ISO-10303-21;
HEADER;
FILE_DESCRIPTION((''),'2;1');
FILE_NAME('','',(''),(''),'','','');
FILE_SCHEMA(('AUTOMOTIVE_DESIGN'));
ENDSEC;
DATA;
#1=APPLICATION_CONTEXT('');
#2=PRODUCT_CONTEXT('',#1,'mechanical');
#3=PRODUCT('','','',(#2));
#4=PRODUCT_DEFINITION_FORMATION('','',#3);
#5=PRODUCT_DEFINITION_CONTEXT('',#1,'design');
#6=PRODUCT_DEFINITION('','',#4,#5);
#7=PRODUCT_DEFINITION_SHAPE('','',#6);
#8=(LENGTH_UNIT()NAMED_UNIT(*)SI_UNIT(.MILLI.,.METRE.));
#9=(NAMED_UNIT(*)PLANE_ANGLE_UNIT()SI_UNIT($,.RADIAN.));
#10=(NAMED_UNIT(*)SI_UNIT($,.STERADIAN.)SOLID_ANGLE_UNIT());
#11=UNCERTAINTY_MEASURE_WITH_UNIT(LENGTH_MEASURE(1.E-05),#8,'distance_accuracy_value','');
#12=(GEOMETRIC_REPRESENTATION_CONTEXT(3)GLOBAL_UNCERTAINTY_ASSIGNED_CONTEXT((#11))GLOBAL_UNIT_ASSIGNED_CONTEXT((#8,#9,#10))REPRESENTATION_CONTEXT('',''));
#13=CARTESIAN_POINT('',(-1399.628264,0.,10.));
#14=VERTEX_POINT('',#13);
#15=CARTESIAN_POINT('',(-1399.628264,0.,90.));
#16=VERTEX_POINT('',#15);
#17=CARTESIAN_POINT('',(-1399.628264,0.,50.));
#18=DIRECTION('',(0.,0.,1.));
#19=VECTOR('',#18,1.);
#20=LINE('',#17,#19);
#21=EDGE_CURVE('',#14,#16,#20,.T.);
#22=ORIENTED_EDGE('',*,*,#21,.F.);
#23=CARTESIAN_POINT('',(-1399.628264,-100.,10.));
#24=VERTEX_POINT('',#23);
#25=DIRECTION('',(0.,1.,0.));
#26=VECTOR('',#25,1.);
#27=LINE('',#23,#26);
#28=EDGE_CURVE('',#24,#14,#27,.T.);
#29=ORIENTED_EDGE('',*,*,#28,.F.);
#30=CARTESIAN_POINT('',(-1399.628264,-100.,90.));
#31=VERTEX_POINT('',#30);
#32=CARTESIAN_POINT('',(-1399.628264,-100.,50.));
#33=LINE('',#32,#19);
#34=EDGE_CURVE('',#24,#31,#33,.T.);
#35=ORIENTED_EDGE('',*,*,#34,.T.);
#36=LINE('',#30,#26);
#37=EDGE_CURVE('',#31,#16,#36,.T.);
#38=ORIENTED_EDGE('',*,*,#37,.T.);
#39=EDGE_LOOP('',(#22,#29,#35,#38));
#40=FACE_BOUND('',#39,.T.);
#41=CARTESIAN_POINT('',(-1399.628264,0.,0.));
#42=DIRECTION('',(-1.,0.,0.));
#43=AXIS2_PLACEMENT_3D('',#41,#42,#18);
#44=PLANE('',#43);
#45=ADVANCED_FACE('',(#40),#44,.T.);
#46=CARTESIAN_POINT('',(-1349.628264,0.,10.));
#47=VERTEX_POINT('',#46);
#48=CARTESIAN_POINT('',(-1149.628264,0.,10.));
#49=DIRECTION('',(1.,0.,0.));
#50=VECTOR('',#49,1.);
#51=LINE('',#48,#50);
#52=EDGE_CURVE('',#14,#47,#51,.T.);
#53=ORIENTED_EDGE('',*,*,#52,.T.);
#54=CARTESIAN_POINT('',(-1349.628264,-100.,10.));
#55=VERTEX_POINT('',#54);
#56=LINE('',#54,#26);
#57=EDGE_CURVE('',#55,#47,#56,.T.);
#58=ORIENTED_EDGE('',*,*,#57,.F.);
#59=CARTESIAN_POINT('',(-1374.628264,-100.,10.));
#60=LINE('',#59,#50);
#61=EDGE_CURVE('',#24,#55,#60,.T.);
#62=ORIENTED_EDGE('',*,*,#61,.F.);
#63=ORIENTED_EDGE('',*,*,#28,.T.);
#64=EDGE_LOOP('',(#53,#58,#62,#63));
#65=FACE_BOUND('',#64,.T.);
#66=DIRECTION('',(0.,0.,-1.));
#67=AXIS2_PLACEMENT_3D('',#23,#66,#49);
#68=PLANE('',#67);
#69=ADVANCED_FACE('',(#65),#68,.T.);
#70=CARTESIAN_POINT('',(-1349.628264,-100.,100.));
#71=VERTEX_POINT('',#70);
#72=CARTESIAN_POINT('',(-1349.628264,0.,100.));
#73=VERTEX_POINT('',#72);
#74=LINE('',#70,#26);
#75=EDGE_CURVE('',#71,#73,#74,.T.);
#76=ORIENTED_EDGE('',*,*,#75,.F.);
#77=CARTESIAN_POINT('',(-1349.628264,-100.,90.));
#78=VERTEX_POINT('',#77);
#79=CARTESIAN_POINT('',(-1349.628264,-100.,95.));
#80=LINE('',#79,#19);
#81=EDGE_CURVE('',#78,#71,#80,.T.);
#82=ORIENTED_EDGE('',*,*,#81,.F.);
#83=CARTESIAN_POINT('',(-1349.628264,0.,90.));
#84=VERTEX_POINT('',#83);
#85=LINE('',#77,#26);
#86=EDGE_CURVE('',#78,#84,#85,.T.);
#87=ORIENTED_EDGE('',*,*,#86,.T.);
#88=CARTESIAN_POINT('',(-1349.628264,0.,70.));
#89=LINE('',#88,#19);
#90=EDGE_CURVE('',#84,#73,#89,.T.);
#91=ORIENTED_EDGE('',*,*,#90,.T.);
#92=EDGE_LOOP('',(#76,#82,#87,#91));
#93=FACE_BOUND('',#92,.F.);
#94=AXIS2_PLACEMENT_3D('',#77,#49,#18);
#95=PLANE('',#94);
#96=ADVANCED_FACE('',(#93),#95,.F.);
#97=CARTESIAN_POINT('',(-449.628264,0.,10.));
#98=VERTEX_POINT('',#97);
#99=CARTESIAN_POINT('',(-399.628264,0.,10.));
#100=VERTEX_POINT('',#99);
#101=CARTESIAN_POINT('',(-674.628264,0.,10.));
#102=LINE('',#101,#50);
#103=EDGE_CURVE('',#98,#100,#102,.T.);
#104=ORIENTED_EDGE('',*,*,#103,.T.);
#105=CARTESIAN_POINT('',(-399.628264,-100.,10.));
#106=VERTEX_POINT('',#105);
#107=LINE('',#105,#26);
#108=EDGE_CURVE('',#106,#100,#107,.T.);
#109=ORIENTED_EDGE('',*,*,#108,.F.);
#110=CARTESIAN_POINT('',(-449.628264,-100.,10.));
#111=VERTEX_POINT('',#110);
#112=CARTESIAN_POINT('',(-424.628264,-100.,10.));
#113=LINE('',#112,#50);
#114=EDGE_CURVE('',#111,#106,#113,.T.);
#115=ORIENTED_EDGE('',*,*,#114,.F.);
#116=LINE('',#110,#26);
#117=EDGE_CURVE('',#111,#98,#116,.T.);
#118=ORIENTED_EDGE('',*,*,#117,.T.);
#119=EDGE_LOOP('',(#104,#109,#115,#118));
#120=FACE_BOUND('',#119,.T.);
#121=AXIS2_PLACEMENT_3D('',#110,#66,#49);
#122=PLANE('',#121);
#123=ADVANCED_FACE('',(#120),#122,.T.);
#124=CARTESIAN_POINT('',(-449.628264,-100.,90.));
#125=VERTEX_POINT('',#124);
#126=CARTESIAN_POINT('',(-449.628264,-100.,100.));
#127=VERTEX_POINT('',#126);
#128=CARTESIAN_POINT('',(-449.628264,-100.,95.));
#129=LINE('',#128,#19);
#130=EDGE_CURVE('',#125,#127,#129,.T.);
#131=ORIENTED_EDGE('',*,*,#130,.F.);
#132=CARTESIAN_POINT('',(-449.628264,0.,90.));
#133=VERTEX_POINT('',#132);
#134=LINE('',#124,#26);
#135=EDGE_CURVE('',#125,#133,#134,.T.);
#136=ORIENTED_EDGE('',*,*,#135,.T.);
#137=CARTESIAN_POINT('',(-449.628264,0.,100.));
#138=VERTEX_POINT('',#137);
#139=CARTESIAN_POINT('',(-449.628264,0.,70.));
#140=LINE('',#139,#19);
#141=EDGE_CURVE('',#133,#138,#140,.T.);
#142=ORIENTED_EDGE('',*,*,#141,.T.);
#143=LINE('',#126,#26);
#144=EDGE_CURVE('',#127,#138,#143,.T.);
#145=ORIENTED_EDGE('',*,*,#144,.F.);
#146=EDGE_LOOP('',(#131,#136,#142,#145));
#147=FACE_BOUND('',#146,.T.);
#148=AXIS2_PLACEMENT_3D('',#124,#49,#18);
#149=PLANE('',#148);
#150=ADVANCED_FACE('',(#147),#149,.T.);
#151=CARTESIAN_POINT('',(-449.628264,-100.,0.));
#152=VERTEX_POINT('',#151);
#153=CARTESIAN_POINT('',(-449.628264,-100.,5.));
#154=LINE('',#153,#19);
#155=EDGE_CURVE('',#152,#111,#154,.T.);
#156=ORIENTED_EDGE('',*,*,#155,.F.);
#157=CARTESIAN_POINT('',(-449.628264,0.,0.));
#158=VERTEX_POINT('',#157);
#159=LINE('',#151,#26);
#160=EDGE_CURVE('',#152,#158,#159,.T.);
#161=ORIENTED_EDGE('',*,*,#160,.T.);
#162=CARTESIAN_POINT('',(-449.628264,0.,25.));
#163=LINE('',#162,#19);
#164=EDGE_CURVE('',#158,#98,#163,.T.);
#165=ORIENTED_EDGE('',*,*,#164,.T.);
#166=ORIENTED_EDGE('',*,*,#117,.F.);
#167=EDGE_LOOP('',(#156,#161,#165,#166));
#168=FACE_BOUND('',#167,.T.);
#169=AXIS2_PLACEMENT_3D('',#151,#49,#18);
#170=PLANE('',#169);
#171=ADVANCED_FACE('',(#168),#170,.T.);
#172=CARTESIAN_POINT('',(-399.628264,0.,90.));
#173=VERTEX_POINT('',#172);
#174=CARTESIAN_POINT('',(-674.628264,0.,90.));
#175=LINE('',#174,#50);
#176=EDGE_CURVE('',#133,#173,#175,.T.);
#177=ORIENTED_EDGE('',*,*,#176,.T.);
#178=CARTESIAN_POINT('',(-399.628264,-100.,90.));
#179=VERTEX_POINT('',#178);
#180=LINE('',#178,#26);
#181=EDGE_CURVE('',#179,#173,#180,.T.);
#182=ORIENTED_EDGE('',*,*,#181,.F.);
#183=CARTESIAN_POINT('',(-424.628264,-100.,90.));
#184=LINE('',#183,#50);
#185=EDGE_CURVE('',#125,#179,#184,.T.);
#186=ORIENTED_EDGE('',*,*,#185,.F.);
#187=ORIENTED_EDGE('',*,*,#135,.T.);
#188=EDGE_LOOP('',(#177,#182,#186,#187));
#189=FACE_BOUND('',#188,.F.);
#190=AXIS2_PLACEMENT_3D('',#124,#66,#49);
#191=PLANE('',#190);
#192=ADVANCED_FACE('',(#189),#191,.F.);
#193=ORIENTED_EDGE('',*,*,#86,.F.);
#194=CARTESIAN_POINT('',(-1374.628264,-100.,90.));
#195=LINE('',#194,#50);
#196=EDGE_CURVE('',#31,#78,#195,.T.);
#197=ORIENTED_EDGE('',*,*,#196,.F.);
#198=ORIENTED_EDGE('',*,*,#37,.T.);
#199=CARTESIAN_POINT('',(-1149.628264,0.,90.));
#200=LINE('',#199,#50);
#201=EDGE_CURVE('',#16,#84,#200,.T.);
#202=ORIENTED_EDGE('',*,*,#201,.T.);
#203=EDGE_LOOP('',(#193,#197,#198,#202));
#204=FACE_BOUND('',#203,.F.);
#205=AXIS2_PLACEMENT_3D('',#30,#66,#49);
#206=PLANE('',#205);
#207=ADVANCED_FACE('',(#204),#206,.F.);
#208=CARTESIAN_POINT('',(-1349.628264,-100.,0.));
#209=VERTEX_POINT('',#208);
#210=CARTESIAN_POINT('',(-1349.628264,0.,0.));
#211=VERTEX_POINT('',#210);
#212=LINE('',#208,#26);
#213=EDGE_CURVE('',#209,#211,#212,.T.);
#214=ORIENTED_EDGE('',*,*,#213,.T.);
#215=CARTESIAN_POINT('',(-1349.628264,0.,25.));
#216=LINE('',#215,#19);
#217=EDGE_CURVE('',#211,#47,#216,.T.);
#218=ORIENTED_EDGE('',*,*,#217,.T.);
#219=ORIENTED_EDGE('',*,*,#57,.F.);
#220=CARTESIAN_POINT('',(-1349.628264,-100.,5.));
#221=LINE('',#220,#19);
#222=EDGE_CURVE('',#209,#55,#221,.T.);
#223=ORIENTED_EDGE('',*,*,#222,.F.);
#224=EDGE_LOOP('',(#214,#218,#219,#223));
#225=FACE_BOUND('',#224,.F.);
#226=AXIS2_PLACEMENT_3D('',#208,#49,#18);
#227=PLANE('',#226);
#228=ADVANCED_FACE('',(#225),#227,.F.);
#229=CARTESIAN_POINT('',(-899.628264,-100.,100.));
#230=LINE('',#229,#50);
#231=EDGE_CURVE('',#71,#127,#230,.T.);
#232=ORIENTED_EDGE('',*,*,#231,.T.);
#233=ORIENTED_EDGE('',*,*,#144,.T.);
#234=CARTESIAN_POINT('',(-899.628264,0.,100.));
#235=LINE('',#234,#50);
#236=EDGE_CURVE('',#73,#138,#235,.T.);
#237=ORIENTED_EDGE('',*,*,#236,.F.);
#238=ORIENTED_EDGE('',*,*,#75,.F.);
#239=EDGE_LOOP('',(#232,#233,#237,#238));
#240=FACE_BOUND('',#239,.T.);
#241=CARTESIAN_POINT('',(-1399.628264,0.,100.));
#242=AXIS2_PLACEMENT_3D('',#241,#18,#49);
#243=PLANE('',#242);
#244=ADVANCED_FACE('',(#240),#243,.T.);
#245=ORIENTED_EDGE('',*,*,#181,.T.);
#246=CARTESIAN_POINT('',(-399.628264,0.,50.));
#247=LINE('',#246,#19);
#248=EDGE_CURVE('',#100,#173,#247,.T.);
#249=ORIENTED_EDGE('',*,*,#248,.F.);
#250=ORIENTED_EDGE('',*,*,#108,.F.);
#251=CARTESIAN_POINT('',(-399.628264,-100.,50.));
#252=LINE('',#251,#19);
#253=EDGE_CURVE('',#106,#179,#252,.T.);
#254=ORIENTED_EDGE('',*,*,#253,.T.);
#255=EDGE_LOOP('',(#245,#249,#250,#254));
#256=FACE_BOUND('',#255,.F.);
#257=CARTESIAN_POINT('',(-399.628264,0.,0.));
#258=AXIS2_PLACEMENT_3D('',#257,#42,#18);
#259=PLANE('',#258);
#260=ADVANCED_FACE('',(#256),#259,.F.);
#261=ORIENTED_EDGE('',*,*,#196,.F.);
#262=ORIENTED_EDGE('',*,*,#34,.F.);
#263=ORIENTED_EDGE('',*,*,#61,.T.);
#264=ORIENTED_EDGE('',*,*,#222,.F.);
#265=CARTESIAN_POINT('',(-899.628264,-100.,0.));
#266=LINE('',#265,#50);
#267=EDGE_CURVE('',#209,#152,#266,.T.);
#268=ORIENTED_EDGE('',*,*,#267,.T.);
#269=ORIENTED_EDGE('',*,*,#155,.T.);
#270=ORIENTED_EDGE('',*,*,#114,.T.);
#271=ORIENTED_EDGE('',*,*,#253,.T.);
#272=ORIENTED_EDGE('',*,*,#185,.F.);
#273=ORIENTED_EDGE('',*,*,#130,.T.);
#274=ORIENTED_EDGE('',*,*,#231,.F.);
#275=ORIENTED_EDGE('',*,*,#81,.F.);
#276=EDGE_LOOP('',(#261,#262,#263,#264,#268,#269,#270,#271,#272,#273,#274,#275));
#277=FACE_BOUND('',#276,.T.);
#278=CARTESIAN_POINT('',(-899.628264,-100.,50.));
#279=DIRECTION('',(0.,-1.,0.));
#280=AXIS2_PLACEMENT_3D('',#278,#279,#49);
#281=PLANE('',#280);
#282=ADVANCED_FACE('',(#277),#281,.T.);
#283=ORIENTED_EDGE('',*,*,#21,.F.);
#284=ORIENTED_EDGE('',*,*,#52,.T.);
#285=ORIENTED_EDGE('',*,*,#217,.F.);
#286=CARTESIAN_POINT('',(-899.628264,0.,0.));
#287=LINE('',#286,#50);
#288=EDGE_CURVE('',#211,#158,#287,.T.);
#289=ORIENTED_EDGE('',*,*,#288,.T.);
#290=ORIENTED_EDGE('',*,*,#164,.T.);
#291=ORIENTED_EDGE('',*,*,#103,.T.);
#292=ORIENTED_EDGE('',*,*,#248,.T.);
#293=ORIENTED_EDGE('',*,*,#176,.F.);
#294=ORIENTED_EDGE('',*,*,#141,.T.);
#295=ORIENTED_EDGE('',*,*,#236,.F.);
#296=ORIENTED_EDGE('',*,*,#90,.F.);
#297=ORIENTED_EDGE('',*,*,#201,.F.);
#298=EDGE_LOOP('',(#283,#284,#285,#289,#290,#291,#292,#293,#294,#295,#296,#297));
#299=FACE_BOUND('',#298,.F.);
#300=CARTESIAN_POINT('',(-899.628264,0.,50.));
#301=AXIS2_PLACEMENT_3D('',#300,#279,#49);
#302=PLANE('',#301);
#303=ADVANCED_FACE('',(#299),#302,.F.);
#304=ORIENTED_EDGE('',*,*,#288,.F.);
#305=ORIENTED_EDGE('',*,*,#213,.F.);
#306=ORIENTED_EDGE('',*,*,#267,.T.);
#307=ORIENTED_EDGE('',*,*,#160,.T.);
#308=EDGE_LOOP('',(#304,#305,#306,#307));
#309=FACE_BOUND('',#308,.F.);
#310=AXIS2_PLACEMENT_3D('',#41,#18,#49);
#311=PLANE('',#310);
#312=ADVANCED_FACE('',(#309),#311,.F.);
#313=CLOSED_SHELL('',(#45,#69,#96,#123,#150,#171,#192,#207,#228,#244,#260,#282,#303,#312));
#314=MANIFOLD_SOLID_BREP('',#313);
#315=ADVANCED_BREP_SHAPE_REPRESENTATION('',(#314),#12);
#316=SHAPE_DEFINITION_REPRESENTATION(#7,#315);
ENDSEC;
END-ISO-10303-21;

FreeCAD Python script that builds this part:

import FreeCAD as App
import Part
import Sketcher

V = App.Vector

doc = App.newDocument("Part")
params = doc.addObject("Spreadsheet::Sheet", "Params")
for row, (alias, value) in enumerate([
    ("sketch1_width", "1000 mm"),
    ("sketch1_height", "100 mm"),
    ("pad1_length", "100 mm"),
    ("sketch2_width", "50 mm"),
    ("sketch2_height", "10 mm"),
], start=1):
    params.set(f"A{row}", alias)
    params.set(f"B{row}", "=" + value)
    params.setAlias(f"B{row}", alias)

body = doc.addObject("PartDesign::Body", "Body")

# Sketch on XZ plane
sketch1 = doc.addObject("Sketcher::SketchObject", "Sketch")
body.addObject(sketch1)
sketch1.AttachmentSupport = (doc.XZ_Plane, [""])
sketch1.MapMode = "FlatFace"
sketch1.addGeometry(Part.LineSegment(V(-1399.628264, 100, 0), V(-1399.628264, 0, 0)), False)
sketch1.addGeometry(Part.LineSegment(V(-1399.628264, 0, 0), V(-399.628264, 0, 0)), False)
sketch1.addGeometry(Part.LineSegment(V(-399.628264, 0, 0), V(-399.628264, 100, 0)), False)
sketch1.addGeometry(Part.LineSegment(V(-399.628264, 100, 0), V(-1399.628264, 100, 0)), False)
sketch1.addConstraint(Sketcher.Constraint("Coincident", 0, 2, 1, 1))
sketch1.addConstraint(Sketcher.Constraint("Coincident", 1, 2, 2, 1))
sketch1.addConstraint(Sketcher.Constraint("Coincident", 2, 2, 3, 1))
sketch1.addConstraint(Sketcher.Constraint("Coincident", 3, 2, 0, 1))
sketch1.addConstraint(Sketcher.Constraint("Vertical", 0))
sketch1.addConstraint(Sketcher.Constraint("Horizontal", 1))
sketch1.addConstraint(Sketcher.Constraint("Vertical", 2))
sketch1.addConstraint(Sketcher.Constraint("Horizontal", 3))
sketch1.addConstraint(Sketcher.Constraint("PointOnObject", 0, 2, -1))
sketch1.addConstraint(Sketcher.Constraint("DistanceX", 1, 1, 1, 2, 1000.0))
sketch1.addConstraint(Sketcher.Constraint("DistanceY", 0, 2, 0, 1, 100.0))
sketch1.addConstraint(Sketcher.Constraint("DistanceX", 0, 2, -1, 1, 1399.628264))
sketch1.setExpression("Constraints[9]", "Params.sketch1_width")
sketch1.setExpression("Constraints[10]", "Params.sketch1_height")
pad1 = doc.addObject("PartDesign::Pad", "Pad")
body.addObject(pad1)
pad1.Profile = sketch1
pad1.setExpression("Length", "Params.pad1_length")

# Sketch on XZ plane
sketch2 = doc.addObject("Sketcher::SketchObject", "Sketch001")
body.addObject(sketch2)
sketch2.AttachmentSupport = (doc.XZ_Plane, [""])
sketch2.MapMode = "FlatFace"
sketch2.AttachmentOffset = App.Placement(V(0, 0, 100), App.Rotation())
sketch2.addGeometry(Part.LineSegment(V(-449.628264, 100, 0), V(-449.628264, 90, 0)), False)
sketch2.addGeometry(Part.LineSegment(V(-449.628264, 90, 0), V(-399.628264, 90, 0)), False)
sketch2.addGeometry(Part.LineSegment(V(-399.628264, 90, 0), V(-399.628264, 100, 0)), False)
sketch2.addGeometry(Part.LineSegment(V(-399.628264, 100, 0), V(-449.628264, 100, 0)), False)
sketch2.addGeometry(Part.LineSegment(V(-449.628264, 10, 0), V(-449.628264, 0, 0)), False)
sketch2.addGeometry(Part.LineSegment(V(-449.628264, 0, 0), V(-399.628264, 0, 0)), False)
sketch2.addGeometry(Part.LineSegment(V(-399.628264, 0, 0), V(-399.628264, 10, 0)), False)
sketch2.addGeometry(Part.LineSegment(V(-399.628264, 10, 0), V(-449.628264, 10, 0)), False)
sketch2.addGeometry(Part.LineSegment(V(-1399.628264, 100, 0), V(-1399.628264, 90, 0)), False)
sketch2.addGeometry(Part.LineSegment(V(-1399.628264, 90, 0), V(-1349.628264, 90, 0)), False)
sketch2.addGeometry(Part.LineSegment(V(-1349.628264, 90, 0), V(-1349.628264, 100, 0)), False)
sketch2.addGeometry(Part.LineSegment(V(-1349.628264, 100, 0), V(-1399.628264, 100, 0)), False)
sketch2.addGeometry(Part.LineSegment(V(-1399.628264, 10, 0), V(-1399.628264, 0, 0)), False)
sketch2.addGeometry(Part.LineSegment(V(-1399.628264, 0, 0), V(-1349.628264, 0, 0)), False)
sketch2.addGeometry(Part.LineSegment(V(-1349.628264, 0, 0), V(-1349.628264, 10, 0)), False)
sketch2.addGeometry(Part.LineSegment(V(-1349.628264, 10, 0), V(-1399.628264, 10, 0)), False)
sketch2.addConstraint(Sketcher.Constraint("Coincident", 0, 2, 1, 1))
sketch2.addConstraint(Sketcher.Constraint("Coincident", 1, 2, 2, 1))
sketch2.addConstraint(Sketcher.Constraint("Coincident", 2, 2, 3, 1))
sketch2.addConstraint(Sketcher.Constraint("Coincident", 3, 2, 0, 1))
sketch2.addConstraint(Sketcher.Constraint("Coincident", 4, 2, 5, 1))
sketch2.addConstraint(Sketcher.Constraint("Coincident", 5, 2, 6, 1))
sketch2.addConstraint(Sketcher.Constraint("Coincident", 6, 2, 7, 1))
sketch2.addConstraint(Sketcher.Constraint("Coincident", 7, 2, 4, 1))
sketch2.addConstraint(Sketcher.Constraint("Coincident", 8, 2, 9, 1))
sketch2.addConstraint(Sketcher.Constraint("Coincident", 9, 2, 10, 1))
sketch2.addConstraint(Sketcher.Constraint("Coincident", 10, 2, 11, 1))
sketch2.addConstraint(Sketcher.Constraint("Coincident", 11, 2, 8, 1))
sketch2.addConstraint(Sketcher.Constraint("Coincident", 12, 2, 13, 1))
sketch2.addConstraint(Sketcher.Constraint("Coincident", 13, 2, 14, 1))
sketch2.addConstraint(Sketcher.Constraint("Coincident", 14, 2, 15, 1))
sketch2.addConstraint(Sketcher.Constraint("Coincident", 15, 2, 12, 1))
sketch2.addConstraint(Sketcher.Constraint("Vertical", 0))
sketch2.addConstraint(Sketcher.Constraint("Horizontal", 1))
sketch2.addConstraint(Sketcher.Constraint("Vertical", 2))
sketch2.addConstraint(Sketcher.Constraint("Horizontal", 3))
sketch2.addConstraint(Sketcher.Constraint("Vertical", 4))
sketch2.addConstraint(Sketcher.Constraint("Horizontal", 5))
sketch2.addConstraint(Sketcher.Constraint("Vertical", 6))
sketch2.addConstraint(Sketcher.Constraint("Horizontal", 7))
sketch2.addConstraint(Sketcher.Constraint("Vertical", 8))
sketch2.addConstraint(Sketcher.Constraint("Horizontal", 9))
sketch2.addConstraint(Sketcher.Constraint("Vertical", 10))
sketch2.addConstraint(Sketcher.Constraint("Horizontal", 11))
sketch2.addConstraint(Sketcher.Constraint("Vertical", 12))
sketch2.addConstraint(Sketcher.Constraint("Horizontal", 13))
sketch2.addConstraint(Sketcher.Constraint("Vertical", 14))
sketch2.addConstraint(Sketcher.Constraint("Horizontal", 15))
sketch2.addConstraint(Sketcher.Constraint("PointOnObject", 4, 2, -1))
sketch2.addConstraint(Sketcher.Constraint("PointOnObject", 12, 2, -1))
sketch2.addConstraint(Sketcher.Constraint("Horizontal", 1, 2, 8, 2))
sketch2.addConstraint(Sketcher.Constraint("Horizontal", 3, 2, 10, 2))
sketch2.addConstraint(Sketcher.Constraint("Horizontal", 7, 2, 14, 2))
sketch2.addConstraint(Sketcher.Constraint("Vertical", 3, 2, 4, 2))
sketch2.addConstraint(Sketcher.Constraint("Vertical", 2, 2, 5, 2))
sketch2.addConstraint(Sketcher.Constraint("Vertical", 11, 2, 12, 2))
sketch2.addConstraint(Sketcher.Constraint("Vertical", 10, 2, 13, 2))
sketch2.addConstraint(Sketcher.Constraint("Equal", 7, 9))
sketch2.addConstraint(Sketcher.Constraint("Equal", 2, 4))
sketch2.addConstraint(Sketcher.Constraint("DistanceX", 1, 1, 1, 2, 50.0))
sketch2.addConstraint(Sketcher.Constraint("DistanceY", 0, 2, 0, 1, 10.0))
sketch2.addConstraint(Sketcher.Constraint("DistanceY", -1, 1, 0, 2, 90.0))
sketch2.addConstraint(Sketcher.Constraint("DistanceX", 8, 2, 0, 2, 950.0))
sketch2.addConstraint(Sketcher.Constraint("DistanceX", 0, 2, -1, 1, 449.628264))
sketch2.setExpression("Constraints[43]", "Params.sketch2_width")
sketch2.setExpression("Constraints[44]", "Params.sketch2_height")
pocket1 = doc.addObject("PartDesign::Pocket", "Pocket")
body.addObject(pocket1)
pocket1.Profile = sketch2
pocket1.Type = "ThroughAll"

doc.recompute()
